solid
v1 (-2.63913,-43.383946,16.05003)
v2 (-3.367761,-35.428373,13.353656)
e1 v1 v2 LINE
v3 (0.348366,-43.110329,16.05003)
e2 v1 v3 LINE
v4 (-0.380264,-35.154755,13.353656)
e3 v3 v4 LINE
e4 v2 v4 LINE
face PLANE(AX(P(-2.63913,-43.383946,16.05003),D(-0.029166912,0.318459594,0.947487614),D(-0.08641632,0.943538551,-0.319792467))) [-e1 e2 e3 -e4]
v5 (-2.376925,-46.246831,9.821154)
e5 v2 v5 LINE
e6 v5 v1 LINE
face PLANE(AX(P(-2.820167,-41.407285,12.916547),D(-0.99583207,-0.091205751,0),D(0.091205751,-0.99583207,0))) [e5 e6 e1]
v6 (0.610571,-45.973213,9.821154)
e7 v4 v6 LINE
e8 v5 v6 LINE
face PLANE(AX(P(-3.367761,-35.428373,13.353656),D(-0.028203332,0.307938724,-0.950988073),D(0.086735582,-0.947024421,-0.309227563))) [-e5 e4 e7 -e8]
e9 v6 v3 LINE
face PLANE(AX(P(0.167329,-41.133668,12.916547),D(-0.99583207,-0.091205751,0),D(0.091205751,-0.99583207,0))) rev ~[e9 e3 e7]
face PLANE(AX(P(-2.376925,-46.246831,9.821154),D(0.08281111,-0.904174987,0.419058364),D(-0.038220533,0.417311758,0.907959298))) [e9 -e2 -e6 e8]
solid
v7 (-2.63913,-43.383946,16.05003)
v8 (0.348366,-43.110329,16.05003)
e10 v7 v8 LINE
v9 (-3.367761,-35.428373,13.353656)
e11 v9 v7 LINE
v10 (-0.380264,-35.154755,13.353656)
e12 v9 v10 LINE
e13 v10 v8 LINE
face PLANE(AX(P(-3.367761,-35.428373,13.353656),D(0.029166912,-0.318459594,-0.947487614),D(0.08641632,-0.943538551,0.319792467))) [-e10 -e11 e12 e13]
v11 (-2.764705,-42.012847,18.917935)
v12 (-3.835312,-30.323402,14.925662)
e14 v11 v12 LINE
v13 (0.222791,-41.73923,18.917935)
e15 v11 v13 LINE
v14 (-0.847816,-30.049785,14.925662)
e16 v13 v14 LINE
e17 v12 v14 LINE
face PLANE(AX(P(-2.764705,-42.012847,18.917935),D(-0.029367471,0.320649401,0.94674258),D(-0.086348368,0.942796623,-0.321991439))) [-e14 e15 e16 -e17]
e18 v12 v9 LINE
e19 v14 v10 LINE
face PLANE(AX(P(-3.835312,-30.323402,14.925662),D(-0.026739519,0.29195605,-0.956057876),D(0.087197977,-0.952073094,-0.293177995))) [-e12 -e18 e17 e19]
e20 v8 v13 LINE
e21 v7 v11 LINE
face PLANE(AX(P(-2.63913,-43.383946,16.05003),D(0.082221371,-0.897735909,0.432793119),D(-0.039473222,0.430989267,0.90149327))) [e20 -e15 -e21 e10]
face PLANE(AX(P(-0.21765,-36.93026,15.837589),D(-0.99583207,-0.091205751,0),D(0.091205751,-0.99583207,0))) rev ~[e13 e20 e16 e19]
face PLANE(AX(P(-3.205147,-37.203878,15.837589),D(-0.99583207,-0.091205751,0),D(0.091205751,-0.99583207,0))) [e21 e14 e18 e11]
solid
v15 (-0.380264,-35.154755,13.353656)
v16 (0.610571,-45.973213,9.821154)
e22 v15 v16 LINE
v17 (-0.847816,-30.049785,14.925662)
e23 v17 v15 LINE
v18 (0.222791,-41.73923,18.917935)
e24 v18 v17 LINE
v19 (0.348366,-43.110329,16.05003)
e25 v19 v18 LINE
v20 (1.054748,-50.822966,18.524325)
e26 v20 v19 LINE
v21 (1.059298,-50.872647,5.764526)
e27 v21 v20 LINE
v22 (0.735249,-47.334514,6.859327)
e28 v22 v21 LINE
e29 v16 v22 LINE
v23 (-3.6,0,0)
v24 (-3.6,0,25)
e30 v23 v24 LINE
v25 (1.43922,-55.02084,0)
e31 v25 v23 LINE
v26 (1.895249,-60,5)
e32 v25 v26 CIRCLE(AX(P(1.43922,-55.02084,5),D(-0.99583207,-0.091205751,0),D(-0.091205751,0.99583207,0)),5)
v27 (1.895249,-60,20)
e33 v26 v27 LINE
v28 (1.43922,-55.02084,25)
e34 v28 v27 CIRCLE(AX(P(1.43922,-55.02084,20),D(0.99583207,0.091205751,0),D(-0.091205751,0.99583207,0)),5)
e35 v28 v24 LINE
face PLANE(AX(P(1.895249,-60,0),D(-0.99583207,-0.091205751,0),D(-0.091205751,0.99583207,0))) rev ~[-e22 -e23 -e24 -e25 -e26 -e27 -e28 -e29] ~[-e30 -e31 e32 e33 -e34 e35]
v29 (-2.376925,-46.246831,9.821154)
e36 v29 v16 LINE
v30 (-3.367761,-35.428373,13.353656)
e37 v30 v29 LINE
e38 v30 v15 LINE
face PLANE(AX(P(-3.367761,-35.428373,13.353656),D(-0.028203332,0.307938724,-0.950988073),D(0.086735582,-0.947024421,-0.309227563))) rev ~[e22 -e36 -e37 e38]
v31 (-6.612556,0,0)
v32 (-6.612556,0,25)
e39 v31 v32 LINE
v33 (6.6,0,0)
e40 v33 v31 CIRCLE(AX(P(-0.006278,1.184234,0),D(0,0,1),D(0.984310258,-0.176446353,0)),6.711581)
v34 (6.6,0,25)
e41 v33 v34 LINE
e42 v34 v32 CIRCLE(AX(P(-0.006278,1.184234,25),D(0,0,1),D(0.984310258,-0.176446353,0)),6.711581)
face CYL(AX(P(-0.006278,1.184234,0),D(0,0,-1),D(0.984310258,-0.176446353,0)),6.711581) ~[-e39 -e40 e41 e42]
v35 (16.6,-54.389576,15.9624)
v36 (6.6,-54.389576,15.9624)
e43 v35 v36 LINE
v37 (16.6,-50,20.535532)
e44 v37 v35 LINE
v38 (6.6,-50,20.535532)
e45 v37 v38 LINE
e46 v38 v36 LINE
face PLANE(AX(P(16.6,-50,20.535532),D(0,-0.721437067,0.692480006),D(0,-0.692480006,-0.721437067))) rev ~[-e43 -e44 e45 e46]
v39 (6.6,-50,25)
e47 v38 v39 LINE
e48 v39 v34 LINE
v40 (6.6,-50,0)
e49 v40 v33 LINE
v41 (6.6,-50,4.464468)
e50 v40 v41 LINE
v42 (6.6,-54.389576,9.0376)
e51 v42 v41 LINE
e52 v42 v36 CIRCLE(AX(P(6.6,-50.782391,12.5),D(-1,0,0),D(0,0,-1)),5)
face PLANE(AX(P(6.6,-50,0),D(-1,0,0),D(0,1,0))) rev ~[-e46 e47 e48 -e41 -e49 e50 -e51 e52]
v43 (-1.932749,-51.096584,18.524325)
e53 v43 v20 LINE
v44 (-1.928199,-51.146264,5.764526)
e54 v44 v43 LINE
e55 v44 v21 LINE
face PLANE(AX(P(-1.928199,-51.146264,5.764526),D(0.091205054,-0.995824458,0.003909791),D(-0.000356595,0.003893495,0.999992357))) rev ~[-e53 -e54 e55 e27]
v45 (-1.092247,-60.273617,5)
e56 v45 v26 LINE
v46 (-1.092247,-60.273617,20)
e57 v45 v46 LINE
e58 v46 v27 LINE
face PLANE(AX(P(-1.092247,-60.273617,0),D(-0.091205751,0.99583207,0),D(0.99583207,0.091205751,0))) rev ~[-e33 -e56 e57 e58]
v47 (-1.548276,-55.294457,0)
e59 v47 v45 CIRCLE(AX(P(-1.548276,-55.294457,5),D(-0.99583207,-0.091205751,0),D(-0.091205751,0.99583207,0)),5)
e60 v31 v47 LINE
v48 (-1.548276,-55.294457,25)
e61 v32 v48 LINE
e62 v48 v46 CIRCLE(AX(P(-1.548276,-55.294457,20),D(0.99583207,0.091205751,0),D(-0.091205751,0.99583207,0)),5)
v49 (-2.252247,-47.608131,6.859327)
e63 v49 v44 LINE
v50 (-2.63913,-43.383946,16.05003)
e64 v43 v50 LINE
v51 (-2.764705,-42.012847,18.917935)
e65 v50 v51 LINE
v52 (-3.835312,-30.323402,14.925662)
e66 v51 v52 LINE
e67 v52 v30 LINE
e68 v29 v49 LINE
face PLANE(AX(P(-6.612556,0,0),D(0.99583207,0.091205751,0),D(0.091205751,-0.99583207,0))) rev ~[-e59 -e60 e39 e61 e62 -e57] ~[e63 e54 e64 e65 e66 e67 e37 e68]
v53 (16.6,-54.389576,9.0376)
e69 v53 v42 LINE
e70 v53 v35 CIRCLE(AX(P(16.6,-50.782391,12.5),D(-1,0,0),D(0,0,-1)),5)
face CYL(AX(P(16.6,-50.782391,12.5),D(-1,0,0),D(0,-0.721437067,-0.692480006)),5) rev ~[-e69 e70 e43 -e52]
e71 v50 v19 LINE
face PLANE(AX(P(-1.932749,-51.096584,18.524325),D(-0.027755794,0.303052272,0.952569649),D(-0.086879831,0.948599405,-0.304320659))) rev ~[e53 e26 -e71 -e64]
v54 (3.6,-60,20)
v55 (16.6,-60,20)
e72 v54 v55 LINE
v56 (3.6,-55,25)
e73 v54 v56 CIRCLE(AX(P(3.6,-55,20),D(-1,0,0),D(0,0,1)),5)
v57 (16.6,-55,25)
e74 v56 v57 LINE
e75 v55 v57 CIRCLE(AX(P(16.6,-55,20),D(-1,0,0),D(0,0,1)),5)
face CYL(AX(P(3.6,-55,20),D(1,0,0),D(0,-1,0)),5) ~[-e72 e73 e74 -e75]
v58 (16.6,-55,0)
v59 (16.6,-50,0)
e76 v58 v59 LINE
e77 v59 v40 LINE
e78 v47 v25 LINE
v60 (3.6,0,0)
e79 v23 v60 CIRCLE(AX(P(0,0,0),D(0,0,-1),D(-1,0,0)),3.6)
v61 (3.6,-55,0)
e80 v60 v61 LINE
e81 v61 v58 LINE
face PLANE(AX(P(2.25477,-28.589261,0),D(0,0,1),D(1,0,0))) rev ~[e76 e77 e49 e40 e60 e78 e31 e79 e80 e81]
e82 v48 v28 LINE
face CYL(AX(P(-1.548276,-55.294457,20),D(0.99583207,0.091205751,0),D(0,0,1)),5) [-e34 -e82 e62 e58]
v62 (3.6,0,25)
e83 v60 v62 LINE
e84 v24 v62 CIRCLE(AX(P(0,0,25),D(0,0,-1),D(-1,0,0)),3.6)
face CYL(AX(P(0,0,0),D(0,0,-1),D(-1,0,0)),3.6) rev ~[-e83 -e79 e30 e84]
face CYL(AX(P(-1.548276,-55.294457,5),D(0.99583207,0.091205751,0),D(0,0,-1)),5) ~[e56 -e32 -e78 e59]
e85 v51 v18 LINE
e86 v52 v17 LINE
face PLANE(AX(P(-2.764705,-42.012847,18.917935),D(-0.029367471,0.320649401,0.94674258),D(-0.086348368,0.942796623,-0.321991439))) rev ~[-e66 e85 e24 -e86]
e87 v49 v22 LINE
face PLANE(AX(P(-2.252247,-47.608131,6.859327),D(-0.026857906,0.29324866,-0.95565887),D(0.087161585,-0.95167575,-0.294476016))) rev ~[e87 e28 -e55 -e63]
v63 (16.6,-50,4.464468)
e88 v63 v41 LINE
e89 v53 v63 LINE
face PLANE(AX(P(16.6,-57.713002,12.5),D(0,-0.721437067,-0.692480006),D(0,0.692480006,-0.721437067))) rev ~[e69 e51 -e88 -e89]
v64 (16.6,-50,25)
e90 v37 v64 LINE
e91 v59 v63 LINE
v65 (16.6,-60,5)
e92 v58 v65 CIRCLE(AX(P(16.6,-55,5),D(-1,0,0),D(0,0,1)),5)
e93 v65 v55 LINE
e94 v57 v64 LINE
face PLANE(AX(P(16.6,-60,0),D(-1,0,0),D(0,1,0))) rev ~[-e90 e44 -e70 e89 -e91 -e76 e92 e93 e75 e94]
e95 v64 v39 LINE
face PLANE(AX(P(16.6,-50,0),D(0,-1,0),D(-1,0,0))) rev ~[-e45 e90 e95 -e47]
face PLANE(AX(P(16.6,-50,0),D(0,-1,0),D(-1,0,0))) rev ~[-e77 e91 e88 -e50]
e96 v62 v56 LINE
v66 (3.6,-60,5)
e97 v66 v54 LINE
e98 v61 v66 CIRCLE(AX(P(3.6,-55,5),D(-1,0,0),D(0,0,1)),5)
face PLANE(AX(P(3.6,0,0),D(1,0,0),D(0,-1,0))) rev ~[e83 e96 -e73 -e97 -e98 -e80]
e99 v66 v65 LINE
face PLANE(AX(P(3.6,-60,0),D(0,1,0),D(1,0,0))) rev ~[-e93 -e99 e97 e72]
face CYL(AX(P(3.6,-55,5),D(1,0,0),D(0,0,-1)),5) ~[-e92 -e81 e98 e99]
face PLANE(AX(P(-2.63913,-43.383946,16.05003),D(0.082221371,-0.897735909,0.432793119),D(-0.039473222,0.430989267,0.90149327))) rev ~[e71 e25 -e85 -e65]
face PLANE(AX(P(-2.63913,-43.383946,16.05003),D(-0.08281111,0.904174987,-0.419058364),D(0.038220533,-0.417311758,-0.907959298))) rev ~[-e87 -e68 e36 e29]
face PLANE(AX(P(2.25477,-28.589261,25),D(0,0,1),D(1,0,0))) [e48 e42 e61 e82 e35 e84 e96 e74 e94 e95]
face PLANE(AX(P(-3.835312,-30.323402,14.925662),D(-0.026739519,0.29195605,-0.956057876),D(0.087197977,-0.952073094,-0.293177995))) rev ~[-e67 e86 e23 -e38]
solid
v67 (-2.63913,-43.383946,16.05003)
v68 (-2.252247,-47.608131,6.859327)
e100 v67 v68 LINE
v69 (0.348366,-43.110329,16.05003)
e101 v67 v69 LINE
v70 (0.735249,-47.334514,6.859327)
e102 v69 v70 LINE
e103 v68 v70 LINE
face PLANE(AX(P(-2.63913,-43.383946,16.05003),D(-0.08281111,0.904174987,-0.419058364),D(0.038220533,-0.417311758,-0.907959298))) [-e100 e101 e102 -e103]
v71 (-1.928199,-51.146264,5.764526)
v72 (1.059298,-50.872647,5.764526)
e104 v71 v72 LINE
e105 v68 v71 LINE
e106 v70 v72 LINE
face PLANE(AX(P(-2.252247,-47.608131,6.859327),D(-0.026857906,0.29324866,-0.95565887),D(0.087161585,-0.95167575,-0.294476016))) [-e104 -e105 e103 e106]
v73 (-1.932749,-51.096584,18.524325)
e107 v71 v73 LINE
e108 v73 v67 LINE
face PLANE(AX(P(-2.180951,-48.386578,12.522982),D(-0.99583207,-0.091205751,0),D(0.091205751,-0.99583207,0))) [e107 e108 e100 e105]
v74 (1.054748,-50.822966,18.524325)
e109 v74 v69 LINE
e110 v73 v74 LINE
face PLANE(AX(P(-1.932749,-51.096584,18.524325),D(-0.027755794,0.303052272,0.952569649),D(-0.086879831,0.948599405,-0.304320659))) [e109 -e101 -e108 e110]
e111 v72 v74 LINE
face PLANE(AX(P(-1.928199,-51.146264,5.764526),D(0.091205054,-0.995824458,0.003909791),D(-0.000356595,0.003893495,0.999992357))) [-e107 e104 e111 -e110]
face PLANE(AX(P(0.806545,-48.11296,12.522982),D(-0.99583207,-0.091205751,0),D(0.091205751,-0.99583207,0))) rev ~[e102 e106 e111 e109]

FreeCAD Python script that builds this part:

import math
import FreeCAD as App
import Part
import Sketcher
from FreeCAD import Vector


def edges_at(feature, points):
    """Names of the edges that pass closest to the given points."""
    edges = feature.Shape.Edges
    near = lambda p: min(range(len(edges)), key=lambda i: edges[i].distToShape(Part.Vertex(*p))[0])
    return sorted({f"Edge{near(p) + 1}" for p in points})

doc = App.newDocument("Part")
body = doc.addObject("PartDesign::Body", "Body")

sketch1 = body.newObject("Sketcher::SketchObject", "Sketch")
sketch1.AttachmentSupport = (doc.getObject("XY_Plane"), [""])
sketch1.MapMode = "FlatFace"
sketch1.addGeometry([
    Part.ArcOfCircle(Part.Circle(Vector(0, 0, 0), Vector(0, 0, 1), 3.6), math.radians(0), math.radians(180)),
    Part.LineSegment(Vector(3.6, 0, 0), Vector(3.6, -60, 0)),
    Part.LineSegment(Vector(3.6, -60, 0), Vector(16.6, -60, 0)),
    Part.LineSegment(Vector(16.6, -60, 0), Vector(16.6, -50, 0)),
    Part.LineSegment(Vector(16.6, -50, 0), Vector(6.6, -50, 0)),
    Part.LineSegment(Vector(6.6, -50, 0), Vector(6.6, 0, 0)),
    Part.ArcOfCircle(Part.Circle(Vector(-0.006278, 1.184234, 0), Vector(0, 0, 1), 6.711581), math.radians(-10.162838), math.radians(190.162838)),
    Part.LineSegment(Vector(-6.612556, 0, 0), Vector(-1.092247, -60.273617, 0)),
    Part.LineSegment(Vector(-1.092247, -60.273617, 0), Vector(1.895249, -60, 0)),
    Part.LineSegment(Vector(1.895249, -60, 0), Vector(-3.6, 0, 0)),
], False)
sketch1.addConstraint([
    Sketcher.Constraint("Tangent", 0, 1, 1, 1),
    Sketcher.Constraint("Coincident", 1, 2, 2, 1),
    Sketcher.Constraint("Coincident", 2, 2, 3, 1),
    Sketcher.Constraint("Coincident", 3, 2, 4, 1),
    Sketcher.Constraint("Coincident", 4, 2, 5, 1),
    Sketcher.Constraint("Coincident", 5, 2, 6, 1),
    Sketcher.Constraint("Coincident", 6, 2, 7, 1),
    Sketcher.Constraint("Coincident", 7, 2, 8, 1),
    Sketcher.Constraint("Coincident", 8, 2, 9, 1),
    Sketcher.Constraint("Coincident", 9, 2, 0, 2),
    Sketcher.Constraint("Vertical", 1),
    Sketcher.Constraint("Horizontal", 2),
    Sketcher.Constraint("Vertical", 3),
    Sketcher.Constraint("Horizontal", 4),
    Sketcher.Constraint("Vertical", 5),
    Sketcher.Constraint("Coincident", 0, 3, -1, 1),
    Sketcher.Constraint("PointOnObject", 5, 2, -1),
    Sketcher.Constraint("PointOnObject", 6, 2, -1),
    Sketcher.Constraint("PointOnObject", 9, 2, -1),
    Sketcher.Constraint("Perpendicular", 7, 8),
    Sketcher.Constraint("Perpendicular", 8, 9),
    Sketcher.Constraint("Horizontal", 2, 2, 8, 2),
    Sketcher.Constraint("Equal", 4, 3),
    Sketcher.Constraint("Radius", 0, 3.6),
    Sketcher.Constraint("DistanceX", 2, 1, 2, 2, 13.0),
    Sketcher.Constraint("DistanceX", 4, 2, 4, 1, 10.0),
    Sketcher.Constraint("DistanceY", 1, 2, 1, 1, 60.0),
    Sketcher.Constraint("Distance", 8, 3.0),
    Sketcher.Constraint("Radius", 6, 6.711581),
    Sketcher.Constraint("DistanceX", -1, 1, 8, 2, 1.895249),
])
pad1 = body.newObject("PartDesign::Pad", "Pad")
pad1.Profile = sketch1
pad1.Length = 25

sketch2 = body.newObject("Sketcher::SketchObject", "Sketch001")
sketch2.AttachmentSupport = (doc.getObject("YZ_Plane"), [""])
sketch2.MapMode = "FlatFace"
sketch2.AttachmentOffset = App.Placement(Vector(0, 0, 16.6), App.Rotation())
sketch2.addGeometry([
    Part.LineSegment(Vector(-50, 4.464468, 0), Vector(-50, 20.535532, 0)),
    Part.LineSegment(Vector(-50, 20.535532, 0), Vector(-57.713002, 12.5, 0)),
    Part.LineSegment(Vector(-57.713002, 12.5, 0), Vector(-50, 4.464468, 0)),
], False)
sketch2.addConstraint([
    Sketcher.Constraint("Coincident", 0, 2, 1, 1),
    Sketcher.Constraint("Coincident", 1, 2, 2, 1),
    Sketcher.Constraint("Coincident", 2, 2, 0, 1),
    Sketcher.Constraint("Vertical", 0),
    Sketcher.Constraint("Equal", 1, 2),
    Sketcher.Constraint("DistanceX", 0, 2, -1, 1, 50.0),
    Sketcher.Constraint("DistanceY", -1, 1, 1, 2, 12.5),
    Sketcher.Constraint("DistanceX", 1, 2, -1, 1, 57.713002),
    Sketcher.Constraint("Distance", 1, 11.138231),
])
pocket1 = body.newObject("PartDesign::Pocket", "Pocket")
pocket1.Profile = sketch2
pocket1.Length = 10
doc.recompute()

fillet = body.newObject("PartDesign::Fillet", "Fillet")
fillet.Base = (pocket1, edges_at(pocket1, [(11.6, -57.713, 12.5)]))
fillet.Radius = 5
doc.recompute()

fillet2 = body.newObject("PartDesign::Fillet", "Fillet001")
fillet2.Base = (fillet, edges_at(fillet, [
    (10.1, -60, 25),
    (0.402, -60.137, 25),
    (0.402, -60.137, 0),
    (10.1, -60, 0),
]))
fillet2.Radius = 5

sketch3 = body.newObject("Sketcher::SketchObject", "Sketch002")
sketch3.Placement = App.Placement(Vector(-6.55755, -0.600589, 0), App.Rotation(Vector(0.091205751, -0.99583207, 0), Vector(0, 0, 1.000000001), Vector(-0.99583207, -0.091205751, 0), "ZXY"))
sketch3.addGeometry([
    Part.LineSegment(Vector(50.757227, 5.764526, 0), Vector(50.707339, 18.524325, 0)),
    Part.LineSegment(Vector(50.707339, 18.524325, 0), Vector(42.962421, 16.05003, 0)),
    Part.LineSegment(Vector(42.962421, 16.05003, 0), Vector(47.204286, 6.859327, 0)),
    Part.LineSegment(Vector(47.204286, 6.859327, 0), Vector(50.757227, 5.764526, 0)),
], False)
sketch3.addConstraint([
    Sketcher.Constraint("Coincident", 0, 2, 1, 1),
    Sketcher.Constraint("Coincident", 1, 2, 2, 1),
    Sketcher.Constraint("Coincident", 2, 2, 3, 1),
    Sketcher.Constraint("Coincident", 3, 2, 0, 1),
    Sketcher.Constraint("DistanceY", 2, 2, 0, 2, 11.664998),
    Sketcher.Constraint("DistanceY", 3, 2, 2, 2, 1.094801),
    Sketcher.Constraint("DistanceX", -1, 1, 0, 2, 50.707339),
    Sketcher.Constraint("DistanceX", -1, 1, 1, 2, 42.962421),
    Sketcher.Constraint("DistanceY", -1, 1, 1, 2, 16.05003),
    Sketcher.Constraint("DistanceX", 2, 2, 3, 2, 3.552942),
    Sketcher.Constraint("DistanceX", 0, 2, 3, 2, 0.049889),
    Sketcher.Constraint("Distance", 1, 8.130553),
])
pocket2 = body.newObject("PartDesign::Pocket", "Pocket001")
pocket2.Profile = sketch3
pocket2.Length = 3

sketch4 = body.newObject("Sketcher::SketchObject", "Sketch003")
sketch4.Placement = App.Placement(Vector(-6.55755, -0.600589, 0), App.Rotation(Vector(0.091205751, -0.99583207, 0), Vector(0, 0, 1.000000001), Vector(-0.99583207, -0.091205751, 0), "ZXY"))
sketch4.addGeometry([
    Part.LineSegment(Vector(34.973551, 13.353656, 0), Vector(45.837288, 9.821154, 0)),
    Part.LineSegment(Vector(45.837288, 9.821154, 0), Vector(42.962421, 16.05003, 0)),
    Part.LineSegment(Vector(42.962421, 16.05003, 0), Vector(34.973551, 13.353656, 0)),
], False)
sketch4.addConstraint([
    Sketcher.Constraint("Coincident", 0, 2, 1, 1),
    Sketcher.Constraint("Coincident", 1, 2, 2, 1),
    Sketcher.Constraint("Coincident", 2, 2, 0, 1),
    Sketcher.Constraint("DistanceY", 0, 2, 2, 2, 3.532502),
    Sketcher.Constraint("Distance", 0, 11.423631),
    Sketcher.Constraint("DistanceX", -1, 1, 1, 2, 42.962421),
    Sketcher.Constraint("DistanceY", -1, 1, 1, 2, 16.05003),
    Sketcher.Constraint("DistanceX", -1, 1, 2, 2, 34.973551),
    Sketcher.Constraint("Distance", 1, 6.860302),
])
pocket3 = body.newObject("PartDesign::Pocket", "Pocket002")
pocket3.Profile = sketch4
pocket3.Length = 3

sketch5 = body.newObject("Sketcher::SketchObject", "Sketch004")
sketch5.Placement = App.Placement(Vector(-6.55755, -0.600589, 0), App.Rotation(Vector(0.091205751, -0.99583207, 0), Vector(0, 0, 1.000000001), Vector(-0.99583207, -0.091205751, 0), "ZXY"))
sketch5.addGeometry([
    Part.LineSegment(Vector(34.973551, 13.353656, 0), Vector(42.962421, 16.05003, 0)),
    Part.LineSegment(Vector(42.962421, 16.05003, 0), Vector(41.585583, 18.917935, 0)),
    Part.LineSegment(Vector(41.585583, 18.917935, 0), Vector(29.847214, 14.925662, 0)),
    Part.LineSegment(Vector(29.847214, 14.925662, 0), Vector(34.973551, 13.353656, 0)),
], False)
sketch5.addConstraint([
    Sketcher.Constraint("Coincident", 0, 2, 1, 1),
    Sketcher.Constraint("Coincident", 1, 2, 2, 1),
    Sketcher.Constraint("Coincident", 2, 2, 3, 1),
    Sketcher.Constraint("Coincident", 3, 2, 0, 1),
    Sketcher.Constraint("Distance", 2, 12.398692),
    Sketcher.Constraint("DistanceX", -1, 1, 0, 2, 42.962421),
    Sketcher.Constraint("DistanceY", -1, 1, 0, 2, 16.05003),
    Sketcher.Constraint("DistanceX", -1, 1, 3, 2, 34.973551),
    Sketcher.Constraint("DistanceX", 2, 2, 1, 2, 11.738369),
    Sketcher.Constraint("DistanceY", 3, 2, 1, 2, 5.564279),
    Sketcher.Constraint("Distance", 0, 8.431635),
    Sketcher.Constraint("Distance", 1, 3.181283),
])
pocket4 = body.newObject("PartDesign::Pocket", "Pocket003")
pocket4.Profile = sketch5
pocket4.Length = 3
body2 = doc.addObject("PartDesign::Body", "Body001")

sketch6 = body2.newObject("Sketcher::SketchObject", "Sketch005")
sketch6.Placement = App.Placement(Vector(-6.55755, -0.600589, 0), App.Rotation(Vector(0.091205751, -0.99583207, 0), Vector(0, 0, 1.000000001), Vector(-0.99583207, -0.091205751, 0), "ZXY"))
sketch6.addGeometry([
    Part.LineSegment(Vector(50.757227, 5.764526, 0), Vector(50.707339, 18.524325, 0)),
    Part.LineSegment(Vector(50.707339, 18.524325, 0), Vector(42.962421, 16.05003, 0)),
    Part.LineSegment(Vector(42.962421, 16.05003, 0), Vector(47.204286, 6.859327, 0)),
    Part.LineSegment(Vector(47.204286, 6.859327, 0), Vector(50.757227, 5.764526, 0)),
], False)
sketch6.addConstraint([
    Sketcher.Constraint("Coincident", 0, 2, 1, 1),
    Sketcher.Constraint("Coincident", 1, 2, 2, 1),
    Sketcher.Constraint("Coincident", 2, 2, 3, 1),
    Sketcher.Constraint("Coincident", 3, 2, 0, 1),
    Sketcher.Constraint("DistanceY", 2, 2, 0, 2, 11.664998),
    Sketcher.Constraint("DistanceY", 3, 2, 2, 2, 1.094801),
    Sketcher.Constraint("DistanceX", -1, 1, 0, 2, 50.707339),
    Sketcher.Constraint("DistanceX", -1, 1, 1, 2, 42.962421),
    Sketcher.Constraint("DistanceY", -1, 1, 1, 2, 16.05003),
    Sketcher.Constraint("DistanceX", 2, 2, 3, 2, 3.552942),
    Sketcher.Constraint("DistanceX", 0, 2, 3, 2, 0.049889),
    Sketcher.Constraint("Distance", 1, 8.130553),
])
pad2 = body2.newObject("PartDesign::Pad", "Pad001")
pad2.Profile = sketch6
pad2.Length = 3
pad2.Reversed = True
body3 = doc.addObject("PartDesign::Body", "Body002")

sketch7 = body3.newObject("Sketcher::SketchObject", "Sketch006")
sketch7.Placement = App.Placement(Vector(-6.55755, -0.600589, 0), App.Rotation(Vector(0.091205751, -0.99583207, 0), Vector(0, 0, 1.000000001), Vector(-0.99583207, -0.091205751, 0), "ZXY"))
sketch7.addGeometry([
    Part.LineSegment(Vector(34.973551, 13.353656, 0), Vector(45.837288, 9.821154, 0)),
    Part.LineSegment(Vector(45.837288, 9.821154, 0), Vector(42.962421, 16.05003, 0)),
    Part.LineSegment(Vector(42.962421, 16.05003, 0), Vector(34.973551, 13.353656, 0)),
], False)
sketch7.addConstraint([
    Sketcher.Constraint("Coincident", 0, 2, 1, 1),
    Sketcher.Constraint("Coincident", 1, 2, 2, 1),
    Sketcher.Constraint("Coincident", 2, 2, 0, 1),
    Sketcher.Constraint("DistanceY", 0, 2, 2, 2, 3.532502),
    Sketcher.Constraint("Distance", 0, 11.423631),
    Sketcher.Constraint("DistanceX", -1, 1, 1, 2, 42.962421),
    Sketcher.Constraint("DistanceY", -1, 1, 1, 2, 16.05003),
    Sketcher.Constraint("DistanceX", -1, 1, 2, 2, 34.973551),
    Sketcher.Constraint("Distance", 1, 6.860302),
])
pad3 = body3.newObject("PartDesign::Pad", "Pad002")
pad3.Profile = sketch7
pad3.Length = 3
pad3.Reversed = True
body4 = doc.addObject("PartDesign::Body", "Body003")

sketch8 = body4.newObject("Sketcher::SketchObject", "Sketch007")
sketch8.Placement = App.Placement(Vector(-6.55755, -0.600589, 0), App.Rotation(Vector(0.091205751, -0.99583207, 0), Vector(0, 0, 1.000000001), Vector(-0.99583207, -0.091205751, 0), "ZXY"))
sketch8.addGeometry([
    Part.LineSegment(Vector(34.973551, 13.353656, 0), Vector(42.962421, 16.05003, 0)),
    Part.LineSegment(Vector(42.962421, 16.05003, 0), Vector(41.585583, 18.917935, 0)),
    Part.LineSegment(Vector(41.585583, 18.917935, 0), Vector(29.847214, 14.925662, 0)),
    Part.LineSegment(Vector(29.847214, 14.925662, 0), Vector(34.973551, 13.353656, 0)),
], False)
sketch8.addConstraint([
    Sketcher.Constraint("Coincident", 0, 2, 1, 1),
    Sketcher.Constraint("Coincident", 1, 2, 2, 1),
    Sketcher.Constraint("Coincident", 2, 2, 3, 1),
    Sketcher.Constraint("Coincident", 3, 2, 0, 1),
    Sketcher.Constraint("Distance", 2, 12.398692),
    Sketcher.Constraint("DistanceX", -1, 1, 0, 2, 42.962421),
    Sketcher.Constraint("DistanceY", -1, 1, 0, 2, 16.05003),
    Sketcher.Constraint("DistanceX", -1, 1, 3, 2, 34.973551),
    Sketcher.Constraint("DistanceX", 2, 2, 1, 2, 11.738369),
    Sketcher.Constraint("DistanceY", 3, 2, 1, 2, 5.564279),
    Sketcher.Constraint("Distance", 0, 8.431635),
    Sketcher.Constraint("Distance", 1, 3.181283),
])
pad4 = body4.newObject("PartDesign::Pad", "Pad003")
pad4.Profile = sketch8
pad4.Length = 3
pad4.Reversed = True

doc.recompute()
